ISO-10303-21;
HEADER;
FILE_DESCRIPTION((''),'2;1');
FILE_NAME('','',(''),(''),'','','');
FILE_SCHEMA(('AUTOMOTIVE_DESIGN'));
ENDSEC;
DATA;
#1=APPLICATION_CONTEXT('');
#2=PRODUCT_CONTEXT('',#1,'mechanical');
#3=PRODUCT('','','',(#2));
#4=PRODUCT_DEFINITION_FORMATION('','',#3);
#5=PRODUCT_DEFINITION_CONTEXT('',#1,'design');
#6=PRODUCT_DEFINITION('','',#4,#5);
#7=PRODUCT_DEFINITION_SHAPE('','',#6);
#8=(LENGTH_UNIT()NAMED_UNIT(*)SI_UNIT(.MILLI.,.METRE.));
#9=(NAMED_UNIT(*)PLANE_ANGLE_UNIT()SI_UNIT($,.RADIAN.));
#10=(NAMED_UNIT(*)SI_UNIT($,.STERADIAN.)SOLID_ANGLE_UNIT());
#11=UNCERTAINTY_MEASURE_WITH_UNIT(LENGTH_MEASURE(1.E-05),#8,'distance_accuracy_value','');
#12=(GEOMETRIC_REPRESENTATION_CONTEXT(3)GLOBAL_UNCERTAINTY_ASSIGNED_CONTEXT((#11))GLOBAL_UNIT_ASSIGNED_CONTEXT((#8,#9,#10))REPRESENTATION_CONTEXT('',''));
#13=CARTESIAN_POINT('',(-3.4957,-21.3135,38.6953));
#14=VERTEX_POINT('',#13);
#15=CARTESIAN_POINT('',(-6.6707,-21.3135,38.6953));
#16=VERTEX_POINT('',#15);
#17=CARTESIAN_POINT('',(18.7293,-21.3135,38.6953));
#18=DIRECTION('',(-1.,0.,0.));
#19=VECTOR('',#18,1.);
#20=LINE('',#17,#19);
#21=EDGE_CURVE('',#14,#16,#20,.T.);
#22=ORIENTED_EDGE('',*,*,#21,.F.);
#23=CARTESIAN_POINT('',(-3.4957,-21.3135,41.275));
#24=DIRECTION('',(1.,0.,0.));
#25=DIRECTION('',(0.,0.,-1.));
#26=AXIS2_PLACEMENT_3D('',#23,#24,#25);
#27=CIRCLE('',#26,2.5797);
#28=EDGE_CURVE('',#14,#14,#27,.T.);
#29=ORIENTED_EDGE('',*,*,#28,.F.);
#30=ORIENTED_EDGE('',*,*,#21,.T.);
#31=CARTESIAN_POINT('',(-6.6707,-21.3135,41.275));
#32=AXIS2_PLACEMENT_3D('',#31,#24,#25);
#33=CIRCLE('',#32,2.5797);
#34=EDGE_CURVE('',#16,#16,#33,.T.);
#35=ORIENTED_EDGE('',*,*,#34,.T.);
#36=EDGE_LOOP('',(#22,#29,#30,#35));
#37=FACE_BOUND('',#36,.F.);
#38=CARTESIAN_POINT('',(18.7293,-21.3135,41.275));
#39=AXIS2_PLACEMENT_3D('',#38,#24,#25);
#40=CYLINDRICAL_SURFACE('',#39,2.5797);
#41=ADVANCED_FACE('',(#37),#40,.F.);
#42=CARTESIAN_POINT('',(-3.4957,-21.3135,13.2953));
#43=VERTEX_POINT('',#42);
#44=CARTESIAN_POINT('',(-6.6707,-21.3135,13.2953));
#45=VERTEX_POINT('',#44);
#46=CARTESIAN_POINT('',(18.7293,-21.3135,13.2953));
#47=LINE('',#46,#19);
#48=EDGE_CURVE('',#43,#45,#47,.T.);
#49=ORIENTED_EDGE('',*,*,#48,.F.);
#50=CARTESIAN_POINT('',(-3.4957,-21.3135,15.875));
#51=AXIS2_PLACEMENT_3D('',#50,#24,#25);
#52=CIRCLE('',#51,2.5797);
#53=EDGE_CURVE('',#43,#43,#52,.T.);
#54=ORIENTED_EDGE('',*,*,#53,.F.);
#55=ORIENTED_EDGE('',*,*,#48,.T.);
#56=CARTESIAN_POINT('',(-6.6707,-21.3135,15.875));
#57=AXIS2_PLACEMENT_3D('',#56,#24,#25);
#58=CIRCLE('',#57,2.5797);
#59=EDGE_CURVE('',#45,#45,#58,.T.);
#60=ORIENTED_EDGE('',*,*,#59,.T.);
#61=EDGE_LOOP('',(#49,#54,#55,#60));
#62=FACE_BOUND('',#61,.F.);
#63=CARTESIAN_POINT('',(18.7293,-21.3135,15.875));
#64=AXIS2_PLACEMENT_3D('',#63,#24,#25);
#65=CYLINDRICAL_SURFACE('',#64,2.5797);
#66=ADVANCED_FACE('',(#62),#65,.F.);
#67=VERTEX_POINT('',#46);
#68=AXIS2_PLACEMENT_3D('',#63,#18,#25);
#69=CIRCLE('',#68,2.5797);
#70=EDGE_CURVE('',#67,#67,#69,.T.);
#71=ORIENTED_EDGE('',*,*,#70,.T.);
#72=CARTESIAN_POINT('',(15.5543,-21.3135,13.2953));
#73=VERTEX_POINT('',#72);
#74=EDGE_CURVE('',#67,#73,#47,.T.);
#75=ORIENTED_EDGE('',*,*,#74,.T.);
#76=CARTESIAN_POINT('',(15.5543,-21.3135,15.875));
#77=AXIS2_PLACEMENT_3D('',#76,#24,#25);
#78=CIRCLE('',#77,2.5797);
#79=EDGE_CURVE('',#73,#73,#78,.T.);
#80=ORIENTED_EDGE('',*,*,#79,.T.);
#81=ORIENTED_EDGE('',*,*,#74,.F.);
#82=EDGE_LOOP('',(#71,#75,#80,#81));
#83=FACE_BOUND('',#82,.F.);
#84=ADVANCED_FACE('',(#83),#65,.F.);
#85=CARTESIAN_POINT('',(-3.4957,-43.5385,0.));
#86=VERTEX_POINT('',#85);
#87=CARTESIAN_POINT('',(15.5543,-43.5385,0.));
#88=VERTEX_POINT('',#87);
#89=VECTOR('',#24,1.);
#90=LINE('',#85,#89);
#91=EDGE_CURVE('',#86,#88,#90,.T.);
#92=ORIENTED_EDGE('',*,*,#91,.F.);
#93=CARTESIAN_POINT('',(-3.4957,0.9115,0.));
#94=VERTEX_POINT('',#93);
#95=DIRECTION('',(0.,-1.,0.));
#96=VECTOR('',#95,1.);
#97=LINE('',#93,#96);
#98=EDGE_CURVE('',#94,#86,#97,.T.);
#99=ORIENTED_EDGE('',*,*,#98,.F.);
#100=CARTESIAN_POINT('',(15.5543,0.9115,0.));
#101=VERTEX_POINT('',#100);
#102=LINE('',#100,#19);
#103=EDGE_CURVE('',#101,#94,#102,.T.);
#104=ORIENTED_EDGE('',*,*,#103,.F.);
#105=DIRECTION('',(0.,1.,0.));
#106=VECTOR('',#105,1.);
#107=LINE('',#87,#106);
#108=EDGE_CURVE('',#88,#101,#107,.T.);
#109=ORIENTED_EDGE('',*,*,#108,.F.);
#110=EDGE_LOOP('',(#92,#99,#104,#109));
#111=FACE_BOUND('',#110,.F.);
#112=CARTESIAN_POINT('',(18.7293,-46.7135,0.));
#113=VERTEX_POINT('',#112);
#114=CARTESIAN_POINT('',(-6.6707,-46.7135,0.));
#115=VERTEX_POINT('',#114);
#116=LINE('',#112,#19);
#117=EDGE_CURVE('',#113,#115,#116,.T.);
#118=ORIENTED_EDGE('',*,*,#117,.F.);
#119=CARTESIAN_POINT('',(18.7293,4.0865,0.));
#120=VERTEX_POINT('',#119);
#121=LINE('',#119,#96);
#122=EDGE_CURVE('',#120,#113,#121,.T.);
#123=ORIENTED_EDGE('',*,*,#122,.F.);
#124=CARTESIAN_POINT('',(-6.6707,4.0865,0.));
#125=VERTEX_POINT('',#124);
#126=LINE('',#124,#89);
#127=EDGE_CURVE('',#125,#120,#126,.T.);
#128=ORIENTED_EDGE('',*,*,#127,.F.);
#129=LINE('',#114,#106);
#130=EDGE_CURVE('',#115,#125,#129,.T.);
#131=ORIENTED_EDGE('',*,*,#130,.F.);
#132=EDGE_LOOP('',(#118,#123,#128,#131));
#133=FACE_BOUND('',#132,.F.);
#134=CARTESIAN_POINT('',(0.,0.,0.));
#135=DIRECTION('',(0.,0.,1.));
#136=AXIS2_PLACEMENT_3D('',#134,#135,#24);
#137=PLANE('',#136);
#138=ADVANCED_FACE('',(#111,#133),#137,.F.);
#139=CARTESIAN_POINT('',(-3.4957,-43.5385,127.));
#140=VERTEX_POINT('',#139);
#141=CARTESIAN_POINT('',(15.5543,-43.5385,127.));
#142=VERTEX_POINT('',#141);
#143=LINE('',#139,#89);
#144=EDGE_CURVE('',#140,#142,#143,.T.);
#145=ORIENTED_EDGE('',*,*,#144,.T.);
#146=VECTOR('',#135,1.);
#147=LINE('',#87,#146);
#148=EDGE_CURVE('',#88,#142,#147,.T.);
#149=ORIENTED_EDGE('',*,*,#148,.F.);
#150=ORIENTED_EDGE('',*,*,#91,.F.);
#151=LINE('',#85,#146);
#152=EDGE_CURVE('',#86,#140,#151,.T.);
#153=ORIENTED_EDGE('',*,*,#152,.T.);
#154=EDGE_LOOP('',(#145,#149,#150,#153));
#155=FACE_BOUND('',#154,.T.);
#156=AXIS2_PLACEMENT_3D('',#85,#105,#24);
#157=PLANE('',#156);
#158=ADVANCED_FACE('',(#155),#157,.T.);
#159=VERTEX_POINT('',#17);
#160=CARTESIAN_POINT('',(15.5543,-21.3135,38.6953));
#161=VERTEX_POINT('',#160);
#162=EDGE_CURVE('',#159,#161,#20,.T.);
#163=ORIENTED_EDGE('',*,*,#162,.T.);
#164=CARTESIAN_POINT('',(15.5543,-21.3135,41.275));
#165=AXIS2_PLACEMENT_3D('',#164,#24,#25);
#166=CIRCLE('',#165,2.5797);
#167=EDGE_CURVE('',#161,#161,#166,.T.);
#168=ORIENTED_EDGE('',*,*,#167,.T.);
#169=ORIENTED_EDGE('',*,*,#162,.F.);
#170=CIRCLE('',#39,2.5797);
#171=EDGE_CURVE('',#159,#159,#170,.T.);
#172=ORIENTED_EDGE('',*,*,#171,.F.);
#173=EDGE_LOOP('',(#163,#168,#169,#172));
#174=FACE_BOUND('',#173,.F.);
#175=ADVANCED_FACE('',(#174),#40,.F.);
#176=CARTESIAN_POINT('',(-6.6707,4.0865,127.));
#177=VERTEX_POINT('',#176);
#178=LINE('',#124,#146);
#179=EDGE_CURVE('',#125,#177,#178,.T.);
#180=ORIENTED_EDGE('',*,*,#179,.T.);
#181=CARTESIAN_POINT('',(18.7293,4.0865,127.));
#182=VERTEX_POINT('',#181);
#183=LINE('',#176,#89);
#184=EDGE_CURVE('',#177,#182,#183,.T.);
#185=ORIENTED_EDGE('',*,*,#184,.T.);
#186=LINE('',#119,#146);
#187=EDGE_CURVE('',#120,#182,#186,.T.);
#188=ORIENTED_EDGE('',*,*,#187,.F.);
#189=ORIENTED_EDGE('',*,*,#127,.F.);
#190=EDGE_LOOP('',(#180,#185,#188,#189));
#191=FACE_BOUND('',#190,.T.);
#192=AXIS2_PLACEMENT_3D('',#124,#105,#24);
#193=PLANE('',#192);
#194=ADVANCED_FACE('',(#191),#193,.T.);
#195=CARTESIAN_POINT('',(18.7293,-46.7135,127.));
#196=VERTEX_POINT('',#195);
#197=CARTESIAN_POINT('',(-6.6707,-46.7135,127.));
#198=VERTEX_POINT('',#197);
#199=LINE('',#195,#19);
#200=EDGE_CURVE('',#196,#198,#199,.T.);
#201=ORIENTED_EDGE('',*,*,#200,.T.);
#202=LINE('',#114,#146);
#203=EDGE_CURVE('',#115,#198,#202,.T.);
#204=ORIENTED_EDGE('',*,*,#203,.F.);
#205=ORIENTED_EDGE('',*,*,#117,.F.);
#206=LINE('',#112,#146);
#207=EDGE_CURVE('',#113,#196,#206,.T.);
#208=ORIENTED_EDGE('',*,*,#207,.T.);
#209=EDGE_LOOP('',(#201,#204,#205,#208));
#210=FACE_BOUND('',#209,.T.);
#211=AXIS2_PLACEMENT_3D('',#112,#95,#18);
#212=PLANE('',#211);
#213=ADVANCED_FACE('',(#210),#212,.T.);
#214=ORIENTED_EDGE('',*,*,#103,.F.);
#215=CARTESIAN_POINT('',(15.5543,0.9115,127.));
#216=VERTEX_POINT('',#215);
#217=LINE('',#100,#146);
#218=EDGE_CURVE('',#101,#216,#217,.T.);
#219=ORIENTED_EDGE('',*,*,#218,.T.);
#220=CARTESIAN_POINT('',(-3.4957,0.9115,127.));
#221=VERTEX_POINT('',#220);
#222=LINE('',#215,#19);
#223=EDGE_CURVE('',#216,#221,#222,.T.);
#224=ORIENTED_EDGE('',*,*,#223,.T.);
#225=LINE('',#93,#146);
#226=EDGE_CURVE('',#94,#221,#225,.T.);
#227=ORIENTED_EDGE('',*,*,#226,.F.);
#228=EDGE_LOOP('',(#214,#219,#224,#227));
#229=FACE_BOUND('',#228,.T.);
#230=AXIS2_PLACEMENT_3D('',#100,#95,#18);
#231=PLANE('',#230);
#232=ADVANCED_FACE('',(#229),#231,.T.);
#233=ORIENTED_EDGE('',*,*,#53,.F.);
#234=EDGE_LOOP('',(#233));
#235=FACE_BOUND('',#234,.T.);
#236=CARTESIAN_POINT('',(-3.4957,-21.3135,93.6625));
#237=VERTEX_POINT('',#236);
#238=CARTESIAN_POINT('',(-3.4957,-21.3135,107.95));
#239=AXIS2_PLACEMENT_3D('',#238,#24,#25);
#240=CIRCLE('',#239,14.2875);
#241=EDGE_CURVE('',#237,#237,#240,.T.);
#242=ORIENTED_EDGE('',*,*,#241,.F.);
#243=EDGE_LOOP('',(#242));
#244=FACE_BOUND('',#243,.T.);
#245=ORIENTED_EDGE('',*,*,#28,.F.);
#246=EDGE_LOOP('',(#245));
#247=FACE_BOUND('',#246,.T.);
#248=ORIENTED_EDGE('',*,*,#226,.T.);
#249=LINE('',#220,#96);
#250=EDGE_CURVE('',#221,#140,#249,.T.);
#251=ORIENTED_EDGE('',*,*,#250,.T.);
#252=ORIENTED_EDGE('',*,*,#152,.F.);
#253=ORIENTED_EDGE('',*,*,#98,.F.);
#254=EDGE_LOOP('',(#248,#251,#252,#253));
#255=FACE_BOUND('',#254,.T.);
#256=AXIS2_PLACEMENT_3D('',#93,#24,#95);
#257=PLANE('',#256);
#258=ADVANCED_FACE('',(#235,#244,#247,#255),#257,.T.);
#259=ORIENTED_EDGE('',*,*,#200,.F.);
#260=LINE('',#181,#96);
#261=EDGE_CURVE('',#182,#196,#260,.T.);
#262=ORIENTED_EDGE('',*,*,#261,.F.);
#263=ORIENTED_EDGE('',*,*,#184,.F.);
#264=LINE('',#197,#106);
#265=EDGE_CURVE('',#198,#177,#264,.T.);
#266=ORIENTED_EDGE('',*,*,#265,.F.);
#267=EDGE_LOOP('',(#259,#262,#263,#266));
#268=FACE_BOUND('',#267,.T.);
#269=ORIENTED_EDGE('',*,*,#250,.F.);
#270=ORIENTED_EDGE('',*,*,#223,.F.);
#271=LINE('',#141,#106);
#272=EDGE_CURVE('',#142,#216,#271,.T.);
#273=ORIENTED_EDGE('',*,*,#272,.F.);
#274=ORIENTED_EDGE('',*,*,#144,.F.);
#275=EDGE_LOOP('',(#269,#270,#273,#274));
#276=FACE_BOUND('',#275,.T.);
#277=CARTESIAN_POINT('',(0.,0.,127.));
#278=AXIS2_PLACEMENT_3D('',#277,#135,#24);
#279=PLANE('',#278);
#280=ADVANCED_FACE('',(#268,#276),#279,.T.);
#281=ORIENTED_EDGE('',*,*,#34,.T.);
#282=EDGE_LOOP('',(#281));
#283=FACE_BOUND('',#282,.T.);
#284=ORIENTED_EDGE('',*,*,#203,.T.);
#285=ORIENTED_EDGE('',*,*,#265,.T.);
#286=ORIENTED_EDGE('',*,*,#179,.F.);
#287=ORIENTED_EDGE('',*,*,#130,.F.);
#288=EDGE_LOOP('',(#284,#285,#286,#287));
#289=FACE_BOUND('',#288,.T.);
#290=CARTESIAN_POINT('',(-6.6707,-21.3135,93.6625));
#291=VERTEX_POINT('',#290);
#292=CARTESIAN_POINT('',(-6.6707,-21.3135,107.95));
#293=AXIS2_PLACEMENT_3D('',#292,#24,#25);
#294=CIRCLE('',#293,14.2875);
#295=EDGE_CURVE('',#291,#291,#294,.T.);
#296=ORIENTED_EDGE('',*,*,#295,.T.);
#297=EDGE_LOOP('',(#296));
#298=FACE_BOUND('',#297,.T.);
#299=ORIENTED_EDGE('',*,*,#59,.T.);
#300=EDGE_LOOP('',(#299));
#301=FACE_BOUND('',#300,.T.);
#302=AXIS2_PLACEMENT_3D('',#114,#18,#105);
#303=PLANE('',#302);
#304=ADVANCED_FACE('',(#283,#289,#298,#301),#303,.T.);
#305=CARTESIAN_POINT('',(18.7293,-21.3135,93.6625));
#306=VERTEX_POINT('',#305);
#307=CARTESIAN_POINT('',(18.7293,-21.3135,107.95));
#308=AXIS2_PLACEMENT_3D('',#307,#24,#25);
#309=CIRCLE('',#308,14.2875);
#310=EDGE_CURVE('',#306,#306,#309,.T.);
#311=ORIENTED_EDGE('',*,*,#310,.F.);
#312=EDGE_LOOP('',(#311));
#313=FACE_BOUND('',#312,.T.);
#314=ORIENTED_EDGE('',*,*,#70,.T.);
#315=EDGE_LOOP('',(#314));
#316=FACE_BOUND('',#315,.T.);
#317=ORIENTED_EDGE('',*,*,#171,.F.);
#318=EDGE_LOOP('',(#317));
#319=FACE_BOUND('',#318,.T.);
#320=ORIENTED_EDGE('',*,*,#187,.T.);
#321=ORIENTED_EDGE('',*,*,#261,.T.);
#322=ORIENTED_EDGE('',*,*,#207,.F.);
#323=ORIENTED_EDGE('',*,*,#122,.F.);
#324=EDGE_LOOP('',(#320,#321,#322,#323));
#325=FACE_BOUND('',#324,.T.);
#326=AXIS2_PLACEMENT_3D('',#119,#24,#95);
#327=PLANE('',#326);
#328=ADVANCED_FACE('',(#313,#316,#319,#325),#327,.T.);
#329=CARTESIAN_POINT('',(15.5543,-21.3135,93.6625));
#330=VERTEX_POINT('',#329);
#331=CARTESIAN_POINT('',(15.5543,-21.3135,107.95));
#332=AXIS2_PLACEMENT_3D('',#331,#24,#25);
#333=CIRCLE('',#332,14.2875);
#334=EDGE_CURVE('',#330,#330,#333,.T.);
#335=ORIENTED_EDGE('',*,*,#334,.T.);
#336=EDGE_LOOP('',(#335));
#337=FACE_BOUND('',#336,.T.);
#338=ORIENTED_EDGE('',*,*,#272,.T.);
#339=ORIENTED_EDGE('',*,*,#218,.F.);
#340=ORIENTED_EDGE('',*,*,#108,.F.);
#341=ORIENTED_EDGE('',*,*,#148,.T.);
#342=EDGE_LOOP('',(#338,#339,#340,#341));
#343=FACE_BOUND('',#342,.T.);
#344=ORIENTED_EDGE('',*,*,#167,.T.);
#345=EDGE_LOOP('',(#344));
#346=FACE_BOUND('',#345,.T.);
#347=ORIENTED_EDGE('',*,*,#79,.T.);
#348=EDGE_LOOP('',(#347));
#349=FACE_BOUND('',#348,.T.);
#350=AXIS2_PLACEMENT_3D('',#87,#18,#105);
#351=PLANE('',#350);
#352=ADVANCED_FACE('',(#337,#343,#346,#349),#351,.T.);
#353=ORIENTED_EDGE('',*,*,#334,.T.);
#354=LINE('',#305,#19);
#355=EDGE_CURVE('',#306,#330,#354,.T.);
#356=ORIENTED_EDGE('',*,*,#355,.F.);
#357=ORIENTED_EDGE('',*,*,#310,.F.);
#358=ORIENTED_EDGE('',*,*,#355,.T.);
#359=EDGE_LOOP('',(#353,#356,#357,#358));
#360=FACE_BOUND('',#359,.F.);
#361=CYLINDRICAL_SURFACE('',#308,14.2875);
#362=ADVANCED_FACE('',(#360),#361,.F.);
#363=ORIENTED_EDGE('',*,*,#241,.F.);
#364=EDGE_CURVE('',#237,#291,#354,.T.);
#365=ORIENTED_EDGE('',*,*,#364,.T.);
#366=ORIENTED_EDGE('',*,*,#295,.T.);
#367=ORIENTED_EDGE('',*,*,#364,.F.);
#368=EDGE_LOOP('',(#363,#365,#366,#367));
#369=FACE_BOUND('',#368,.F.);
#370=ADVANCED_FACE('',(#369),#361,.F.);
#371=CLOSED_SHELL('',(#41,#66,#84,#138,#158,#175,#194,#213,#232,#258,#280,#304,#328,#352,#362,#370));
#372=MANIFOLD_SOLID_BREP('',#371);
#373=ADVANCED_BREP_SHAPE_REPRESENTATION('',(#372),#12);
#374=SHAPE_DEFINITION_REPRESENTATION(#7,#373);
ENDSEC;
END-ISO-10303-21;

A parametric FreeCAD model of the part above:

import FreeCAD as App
import Part
import Sketcher

V = App.Vector
Q = App.Units.Quantity


def add_polygon(sketch, points):
    """Adds a closed chain of lines whose ends are joined by coincident constraints."""
    first, n = sketch.GeometryCount, len(points)
    for a, b in zip(points, points[1:] + points[:1]):
        sketch.addGeometry(Part.LineSegment(App.Vector(*a, 0), App.Vector(*b, 0)), False)
    for i in range(n):
        sketch.addConstraint(Sketcher.Constraint("Coincident", first + i, 2, first + (i + 1) % n, 1))

doc = App.newDocument("Part")
body = doc.addObject("PartDesign::Body", "Body")

sketch1 = doc.addObject("Sketcher::SketchObject", "Sketch")
body.addObject(sketch1)
sketch1.AttachmentSupport = (doc.XY_Plane, [""])
sketch1.MapMode = "FlatFace"
add_polygon(sketch1, [(19, 4), (-7, 4), (-7, -47), (19, -47)])
add_polygon(sketch1, [(-3, 1), (16, 1), (16, -44), (-3, -44)])
sketch1.addConstraint(Sketcher.Constraint("Horizontal", 0))
sketch1.addConstraint(Sketcher.Constraint("Vertical", 1))
sketch1.addConstraint(Sketcher.Constraint("Horizontal", 2))
sketch1.addConstraint(Sketcher.Constraint("Vertical", 3))
sketch1.addConstraint(Sketcher.Constraint("Horizontal", 4))
sketch1.addConstraint(Sketcher.Constraint("Vertical", 5))
sketch1.addConstraint(Sketcher.Constraint("Horizontal", 6))
sketch1.addConstraint(Sketcher.Constraint("Vertical", 7))
sketch1.addConstraint(Sketcher.Constraint("DistanceX", 0, 2, 0, 1, Q("1 in")))
sketch1.addConstraint(Sketcher.Constraint("DistanceY", 1, 2, 1, 1, Q("2 in")))
sketch1.addConstraint(Sketcher.Constraint("DistanceX", 4, 2, 3, 2, Q("0.125 in")))
sketch1.addConstraint(Sketcher.Constraint("DistanceY", 4, 2, 3, 2, Q("0.125 in")))
sketch1.addConstraint(Sketcher.Constraint("DistanceY", 2, 2, 5, 2, Q("0.125 in")))
sketch1.addConstraint(Sketcher.Constraint("DistanceX", 1, 2, 6, 2, Q("0.125 in")))
sketch1.addConstraint(Sketcher.Constraint("DistanceX", 0, 2, -1, 1, 6.6707))
sketch1.addConstraint(Sketcher.Constraint("DistanceY", -1, 1, 0, 2, 4.0865))
pad1 = doc.addObject("PartDesign::Pad", "Pad")
body.addObject(pad1)
pad1.Profile = sketch1
pad1.Length = Q("5 in")

sketch2 = doc.addObject("Sketcher::SketchObject", "Sketch001")
body.addObject(sketch2)
sketch2.AttachmentSupport = (doc.YZ_Plane, [""])
sketch2.MapMode = "FlatFace"
sketch2.AttachmentOffset = App.Placement(V(0, 0, 18.7293), App.Rotation())
sketch2.addGeometry(Part.Circle(V(-21, 108, 0), V(0, 0, 1), 14), False)
sketch2.addConstraint(Sketcher.Constraint("Diameter", 0, Q("1.125 in")))
sketch2.addConstraint(Sketcher.Constraint("DistanceY", -1, 1, 0, 3, Q("4.25 in")))
sketch2.addConstraint(Sketcher.Constraint("DistanceX", 0, 3, -1, 1, 21.3135))
pocket1 = doc.addObject("PartDesign::Pocket", "Pocket")
body.addObject(pocket1)
pocket1.Profile = sketch2
pocket1.Length = Q("4 in")

sketch3 = doc.addObject("Sketcher::SketchObject", "Sketch002")
body.addObject(sketch3)
sketch3.AttachmentSupport = (doc.YZ_Plane, [""])
sketch3.MapMode = "FlatFace"
sketch3.AttachmentOffset = App.Placement(V(0, 0, 18.7293), App.Rotation())
sketch3.addGeometry(Part.Circle(V(-21.3, 15.9, 0), V(0, 0, 1), 2.6), False)
sketch3.addGeometry(Part.Circle(V(-21.3, 41.3, 0), V(0, 0, 1), 2.6), False)
sketch3.addConstraint(Sketcher.Constraint("Equal", 0, 1))
sketch3.addConstraint(Sketcher.Constraint("Vertical", 0, 3, 1, 3))
sketch3.addConstraint(Sketcher.Constraint("Diameter", 0, Q("0.203126 in")))
sketch3.addConstraint(Sketcher.Constraint("DistanceY", 0, 3, 1, 3, Q("1 in")))
sketch3.addConstraint(Sketcher.Constraint("DistanceY", -1, 1, 0, 3, Q("0.625 in")))
sketch3.addConstraint(Sketcher.Constraint("DistanceX", 0, 3, -1, 1, 21.3135))
pocket2 = doc.addObject("PartDesign::Pocket", "Pocket001")
body.addObject(pocket2)
pocket2.Profile = sketch3
pocket2.Length = Q("4 in")

doc.recompute()
